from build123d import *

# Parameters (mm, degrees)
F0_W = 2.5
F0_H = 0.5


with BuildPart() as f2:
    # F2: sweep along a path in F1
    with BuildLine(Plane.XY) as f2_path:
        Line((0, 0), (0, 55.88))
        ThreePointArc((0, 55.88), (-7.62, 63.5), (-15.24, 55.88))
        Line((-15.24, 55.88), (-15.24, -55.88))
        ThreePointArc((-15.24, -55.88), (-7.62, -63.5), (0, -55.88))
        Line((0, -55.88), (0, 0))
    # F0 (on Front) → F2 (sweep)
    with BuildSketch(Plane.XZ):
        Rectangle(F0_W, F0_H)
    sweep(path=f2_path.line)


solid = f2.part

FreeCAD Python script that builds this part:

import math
import FreeCAD as App
import Part
import Sketcher

V = App.Vector
Q = App.Units.Quantity

doc = App.newDocument("Part")
params = doc.addObject("Spreadsheet::Sheet", "Params")
for row, (alias, value) in enumerate([
    ("sketch1_width", "2.5 mm"),
    ("sketch1_height", "0.5 mm"),
    ("sketch2_radius", "7.62 mm"),
    ("sketch2_height", "111.76 mm"),
], start=1):
    params.set(f"A{row}", alias)
    params.set(f"B{row}", "=" + value)
    params.setAlias(f"B{row}", alias)

body = doc.addObject("PartDesign::Body", "Body")

# Sketch on XZ plane
sketch1 = body.newObject("Sketcher::SketchObject", "Sketch")
sketch1.AttachmentSupport = (doc.getObject("XZ_Plane"), [""])
sketch1.MapMode = "FlatFace"
sketch1.addGeometry(Part.LineSegment(V(-1.2, 0.2, 0), V(-1.2, -0.2, 0)), False)
sketch1.addGeometry(Part.LineSegment(V(-1.2, -0.2, 0), V(1.2, -0.2, 0)), False)
sketch1.addGeometry(Part.LineSegment(V(1.2, -0.2, 0), V(1.2, 0.2, 0)), False)
sketch1.addGeometry(Part.LineSegment(V(1.2, 0.2, 0), V(-1.2, 0.2, 0)), False)
sketch1.addConstraint(Sketcher.Constraint("Coincident", 0, 2, 1, 1))
sketch1.addConstraint(Sketcher.Constraint("Coincident", 1, 2, 2, 1))
sketch1.addConstraint(Sketcher.Constraint("Coincident", 2, 2, 3, 1))
sketch1.addConstraint(Sketcher.Constraint("Coincident", 3, 2, 0, 1))
sketch1.addConstraint(Sketcher.Constraint("Vertical", 0))
sketch1.addConstraint(Sketcher.Constraint("Horizontal", 1))
sketch1.addConstraint(Sketcher.Constraint("Vertical", 2))
sketch1.addConstraint(Sketcher.Constraint("Horizontal", 3))
sketch1.addConstraint(Sketcher.Constraint("Symmetric", 0, 2, 2, 2, -1, 1))
sketch1.addConstraint(Sketcher.Constraint("DistanceX", 1, 1, 1, 2, Q("2.5 mm")))
sketch1.addConstraint(Sketcher.Constraint("DistanceY", 0, 2, 0, 1, Q("0.5 mm")))
sketch1.setExpression("Constraints[9]", "Params.sketch1_width")
sketch1.setExpression("Constraints[10]", "Params.sketch1_height")

# Sketch on XY plane
sketch2 = body.newObject("Sketcher::SketchObject", "Sketch001")
sketch2.AttachmentSupport = (doc.getObject("XY_Plane"), [""])
sketch2.MapMode = "FlatFace"
sketch2.addGeometry(Part.ArcOfCircle(Part.Circle(V(-8, 56, 0), V(0, 0, 1), 8), math.radians(0), math.radians(180)), False)
sketch2.addGeometry(Part.LineSegment(V(-15, 56, 0), V(-15, -56, 0)), False)
sketch2.addGeometry(Part.ArcOfCircle(Part.Circle(V(-8, -56, 0), V(0, 0, 1), 8), math.radians(180), math.radians(360)), False)
sketch2.addGeometry(Part.LineSegment(V(0, -56, 0), V(0, 56, 0)), False)
sketch2.addConstraint(Sketcher.Constraint("Tangent", 0, 2, 1, 1))
sketch2.addConstraint(Sketcher.Constraint("Tangent", 1, 2, 2, 1))
sketch2.addConstraint(Sketcher.Constraint("Tangent", 2, 2, 3, 1))
sketch2.addConstraint(Sketcher.Constraint("Tangent", 3, 2, 0, 1))
sketch2.addConstraint(Sketcher.Constraint("Vertical", 1))
sketch2.addConstraint(Sketcher.Constraint("Vertical", 3))
sketch2.addConstraint(Sketcher.Constraint("Symmetric", 2, 2, 3, 2, -1, 1))
sketch2.addConstraint(Sketcher.Constraint("Radius", 0, Q("7.62 mm")))
sketch2.addConstraint(Sketcher.Constraint("DistanceY", 1, 2, 1, 1, Q("111.76 mm")))
sketch2.setExpression("Constraints[7]", "Params.sketch2_radius")
sketch2.setExpression("Constraints[8]", "Params.sketch2_height")
doc.recompute()

additivepipe = body.newObject("PartDesign::AdditivePipe", "AdditivePipe")
additivepipe.Profile = sketch1
additivepipe.Spine = (sketch2, ["Edge1", "Edge2", "Edge3", "Edge4"])

doc.recompute()
